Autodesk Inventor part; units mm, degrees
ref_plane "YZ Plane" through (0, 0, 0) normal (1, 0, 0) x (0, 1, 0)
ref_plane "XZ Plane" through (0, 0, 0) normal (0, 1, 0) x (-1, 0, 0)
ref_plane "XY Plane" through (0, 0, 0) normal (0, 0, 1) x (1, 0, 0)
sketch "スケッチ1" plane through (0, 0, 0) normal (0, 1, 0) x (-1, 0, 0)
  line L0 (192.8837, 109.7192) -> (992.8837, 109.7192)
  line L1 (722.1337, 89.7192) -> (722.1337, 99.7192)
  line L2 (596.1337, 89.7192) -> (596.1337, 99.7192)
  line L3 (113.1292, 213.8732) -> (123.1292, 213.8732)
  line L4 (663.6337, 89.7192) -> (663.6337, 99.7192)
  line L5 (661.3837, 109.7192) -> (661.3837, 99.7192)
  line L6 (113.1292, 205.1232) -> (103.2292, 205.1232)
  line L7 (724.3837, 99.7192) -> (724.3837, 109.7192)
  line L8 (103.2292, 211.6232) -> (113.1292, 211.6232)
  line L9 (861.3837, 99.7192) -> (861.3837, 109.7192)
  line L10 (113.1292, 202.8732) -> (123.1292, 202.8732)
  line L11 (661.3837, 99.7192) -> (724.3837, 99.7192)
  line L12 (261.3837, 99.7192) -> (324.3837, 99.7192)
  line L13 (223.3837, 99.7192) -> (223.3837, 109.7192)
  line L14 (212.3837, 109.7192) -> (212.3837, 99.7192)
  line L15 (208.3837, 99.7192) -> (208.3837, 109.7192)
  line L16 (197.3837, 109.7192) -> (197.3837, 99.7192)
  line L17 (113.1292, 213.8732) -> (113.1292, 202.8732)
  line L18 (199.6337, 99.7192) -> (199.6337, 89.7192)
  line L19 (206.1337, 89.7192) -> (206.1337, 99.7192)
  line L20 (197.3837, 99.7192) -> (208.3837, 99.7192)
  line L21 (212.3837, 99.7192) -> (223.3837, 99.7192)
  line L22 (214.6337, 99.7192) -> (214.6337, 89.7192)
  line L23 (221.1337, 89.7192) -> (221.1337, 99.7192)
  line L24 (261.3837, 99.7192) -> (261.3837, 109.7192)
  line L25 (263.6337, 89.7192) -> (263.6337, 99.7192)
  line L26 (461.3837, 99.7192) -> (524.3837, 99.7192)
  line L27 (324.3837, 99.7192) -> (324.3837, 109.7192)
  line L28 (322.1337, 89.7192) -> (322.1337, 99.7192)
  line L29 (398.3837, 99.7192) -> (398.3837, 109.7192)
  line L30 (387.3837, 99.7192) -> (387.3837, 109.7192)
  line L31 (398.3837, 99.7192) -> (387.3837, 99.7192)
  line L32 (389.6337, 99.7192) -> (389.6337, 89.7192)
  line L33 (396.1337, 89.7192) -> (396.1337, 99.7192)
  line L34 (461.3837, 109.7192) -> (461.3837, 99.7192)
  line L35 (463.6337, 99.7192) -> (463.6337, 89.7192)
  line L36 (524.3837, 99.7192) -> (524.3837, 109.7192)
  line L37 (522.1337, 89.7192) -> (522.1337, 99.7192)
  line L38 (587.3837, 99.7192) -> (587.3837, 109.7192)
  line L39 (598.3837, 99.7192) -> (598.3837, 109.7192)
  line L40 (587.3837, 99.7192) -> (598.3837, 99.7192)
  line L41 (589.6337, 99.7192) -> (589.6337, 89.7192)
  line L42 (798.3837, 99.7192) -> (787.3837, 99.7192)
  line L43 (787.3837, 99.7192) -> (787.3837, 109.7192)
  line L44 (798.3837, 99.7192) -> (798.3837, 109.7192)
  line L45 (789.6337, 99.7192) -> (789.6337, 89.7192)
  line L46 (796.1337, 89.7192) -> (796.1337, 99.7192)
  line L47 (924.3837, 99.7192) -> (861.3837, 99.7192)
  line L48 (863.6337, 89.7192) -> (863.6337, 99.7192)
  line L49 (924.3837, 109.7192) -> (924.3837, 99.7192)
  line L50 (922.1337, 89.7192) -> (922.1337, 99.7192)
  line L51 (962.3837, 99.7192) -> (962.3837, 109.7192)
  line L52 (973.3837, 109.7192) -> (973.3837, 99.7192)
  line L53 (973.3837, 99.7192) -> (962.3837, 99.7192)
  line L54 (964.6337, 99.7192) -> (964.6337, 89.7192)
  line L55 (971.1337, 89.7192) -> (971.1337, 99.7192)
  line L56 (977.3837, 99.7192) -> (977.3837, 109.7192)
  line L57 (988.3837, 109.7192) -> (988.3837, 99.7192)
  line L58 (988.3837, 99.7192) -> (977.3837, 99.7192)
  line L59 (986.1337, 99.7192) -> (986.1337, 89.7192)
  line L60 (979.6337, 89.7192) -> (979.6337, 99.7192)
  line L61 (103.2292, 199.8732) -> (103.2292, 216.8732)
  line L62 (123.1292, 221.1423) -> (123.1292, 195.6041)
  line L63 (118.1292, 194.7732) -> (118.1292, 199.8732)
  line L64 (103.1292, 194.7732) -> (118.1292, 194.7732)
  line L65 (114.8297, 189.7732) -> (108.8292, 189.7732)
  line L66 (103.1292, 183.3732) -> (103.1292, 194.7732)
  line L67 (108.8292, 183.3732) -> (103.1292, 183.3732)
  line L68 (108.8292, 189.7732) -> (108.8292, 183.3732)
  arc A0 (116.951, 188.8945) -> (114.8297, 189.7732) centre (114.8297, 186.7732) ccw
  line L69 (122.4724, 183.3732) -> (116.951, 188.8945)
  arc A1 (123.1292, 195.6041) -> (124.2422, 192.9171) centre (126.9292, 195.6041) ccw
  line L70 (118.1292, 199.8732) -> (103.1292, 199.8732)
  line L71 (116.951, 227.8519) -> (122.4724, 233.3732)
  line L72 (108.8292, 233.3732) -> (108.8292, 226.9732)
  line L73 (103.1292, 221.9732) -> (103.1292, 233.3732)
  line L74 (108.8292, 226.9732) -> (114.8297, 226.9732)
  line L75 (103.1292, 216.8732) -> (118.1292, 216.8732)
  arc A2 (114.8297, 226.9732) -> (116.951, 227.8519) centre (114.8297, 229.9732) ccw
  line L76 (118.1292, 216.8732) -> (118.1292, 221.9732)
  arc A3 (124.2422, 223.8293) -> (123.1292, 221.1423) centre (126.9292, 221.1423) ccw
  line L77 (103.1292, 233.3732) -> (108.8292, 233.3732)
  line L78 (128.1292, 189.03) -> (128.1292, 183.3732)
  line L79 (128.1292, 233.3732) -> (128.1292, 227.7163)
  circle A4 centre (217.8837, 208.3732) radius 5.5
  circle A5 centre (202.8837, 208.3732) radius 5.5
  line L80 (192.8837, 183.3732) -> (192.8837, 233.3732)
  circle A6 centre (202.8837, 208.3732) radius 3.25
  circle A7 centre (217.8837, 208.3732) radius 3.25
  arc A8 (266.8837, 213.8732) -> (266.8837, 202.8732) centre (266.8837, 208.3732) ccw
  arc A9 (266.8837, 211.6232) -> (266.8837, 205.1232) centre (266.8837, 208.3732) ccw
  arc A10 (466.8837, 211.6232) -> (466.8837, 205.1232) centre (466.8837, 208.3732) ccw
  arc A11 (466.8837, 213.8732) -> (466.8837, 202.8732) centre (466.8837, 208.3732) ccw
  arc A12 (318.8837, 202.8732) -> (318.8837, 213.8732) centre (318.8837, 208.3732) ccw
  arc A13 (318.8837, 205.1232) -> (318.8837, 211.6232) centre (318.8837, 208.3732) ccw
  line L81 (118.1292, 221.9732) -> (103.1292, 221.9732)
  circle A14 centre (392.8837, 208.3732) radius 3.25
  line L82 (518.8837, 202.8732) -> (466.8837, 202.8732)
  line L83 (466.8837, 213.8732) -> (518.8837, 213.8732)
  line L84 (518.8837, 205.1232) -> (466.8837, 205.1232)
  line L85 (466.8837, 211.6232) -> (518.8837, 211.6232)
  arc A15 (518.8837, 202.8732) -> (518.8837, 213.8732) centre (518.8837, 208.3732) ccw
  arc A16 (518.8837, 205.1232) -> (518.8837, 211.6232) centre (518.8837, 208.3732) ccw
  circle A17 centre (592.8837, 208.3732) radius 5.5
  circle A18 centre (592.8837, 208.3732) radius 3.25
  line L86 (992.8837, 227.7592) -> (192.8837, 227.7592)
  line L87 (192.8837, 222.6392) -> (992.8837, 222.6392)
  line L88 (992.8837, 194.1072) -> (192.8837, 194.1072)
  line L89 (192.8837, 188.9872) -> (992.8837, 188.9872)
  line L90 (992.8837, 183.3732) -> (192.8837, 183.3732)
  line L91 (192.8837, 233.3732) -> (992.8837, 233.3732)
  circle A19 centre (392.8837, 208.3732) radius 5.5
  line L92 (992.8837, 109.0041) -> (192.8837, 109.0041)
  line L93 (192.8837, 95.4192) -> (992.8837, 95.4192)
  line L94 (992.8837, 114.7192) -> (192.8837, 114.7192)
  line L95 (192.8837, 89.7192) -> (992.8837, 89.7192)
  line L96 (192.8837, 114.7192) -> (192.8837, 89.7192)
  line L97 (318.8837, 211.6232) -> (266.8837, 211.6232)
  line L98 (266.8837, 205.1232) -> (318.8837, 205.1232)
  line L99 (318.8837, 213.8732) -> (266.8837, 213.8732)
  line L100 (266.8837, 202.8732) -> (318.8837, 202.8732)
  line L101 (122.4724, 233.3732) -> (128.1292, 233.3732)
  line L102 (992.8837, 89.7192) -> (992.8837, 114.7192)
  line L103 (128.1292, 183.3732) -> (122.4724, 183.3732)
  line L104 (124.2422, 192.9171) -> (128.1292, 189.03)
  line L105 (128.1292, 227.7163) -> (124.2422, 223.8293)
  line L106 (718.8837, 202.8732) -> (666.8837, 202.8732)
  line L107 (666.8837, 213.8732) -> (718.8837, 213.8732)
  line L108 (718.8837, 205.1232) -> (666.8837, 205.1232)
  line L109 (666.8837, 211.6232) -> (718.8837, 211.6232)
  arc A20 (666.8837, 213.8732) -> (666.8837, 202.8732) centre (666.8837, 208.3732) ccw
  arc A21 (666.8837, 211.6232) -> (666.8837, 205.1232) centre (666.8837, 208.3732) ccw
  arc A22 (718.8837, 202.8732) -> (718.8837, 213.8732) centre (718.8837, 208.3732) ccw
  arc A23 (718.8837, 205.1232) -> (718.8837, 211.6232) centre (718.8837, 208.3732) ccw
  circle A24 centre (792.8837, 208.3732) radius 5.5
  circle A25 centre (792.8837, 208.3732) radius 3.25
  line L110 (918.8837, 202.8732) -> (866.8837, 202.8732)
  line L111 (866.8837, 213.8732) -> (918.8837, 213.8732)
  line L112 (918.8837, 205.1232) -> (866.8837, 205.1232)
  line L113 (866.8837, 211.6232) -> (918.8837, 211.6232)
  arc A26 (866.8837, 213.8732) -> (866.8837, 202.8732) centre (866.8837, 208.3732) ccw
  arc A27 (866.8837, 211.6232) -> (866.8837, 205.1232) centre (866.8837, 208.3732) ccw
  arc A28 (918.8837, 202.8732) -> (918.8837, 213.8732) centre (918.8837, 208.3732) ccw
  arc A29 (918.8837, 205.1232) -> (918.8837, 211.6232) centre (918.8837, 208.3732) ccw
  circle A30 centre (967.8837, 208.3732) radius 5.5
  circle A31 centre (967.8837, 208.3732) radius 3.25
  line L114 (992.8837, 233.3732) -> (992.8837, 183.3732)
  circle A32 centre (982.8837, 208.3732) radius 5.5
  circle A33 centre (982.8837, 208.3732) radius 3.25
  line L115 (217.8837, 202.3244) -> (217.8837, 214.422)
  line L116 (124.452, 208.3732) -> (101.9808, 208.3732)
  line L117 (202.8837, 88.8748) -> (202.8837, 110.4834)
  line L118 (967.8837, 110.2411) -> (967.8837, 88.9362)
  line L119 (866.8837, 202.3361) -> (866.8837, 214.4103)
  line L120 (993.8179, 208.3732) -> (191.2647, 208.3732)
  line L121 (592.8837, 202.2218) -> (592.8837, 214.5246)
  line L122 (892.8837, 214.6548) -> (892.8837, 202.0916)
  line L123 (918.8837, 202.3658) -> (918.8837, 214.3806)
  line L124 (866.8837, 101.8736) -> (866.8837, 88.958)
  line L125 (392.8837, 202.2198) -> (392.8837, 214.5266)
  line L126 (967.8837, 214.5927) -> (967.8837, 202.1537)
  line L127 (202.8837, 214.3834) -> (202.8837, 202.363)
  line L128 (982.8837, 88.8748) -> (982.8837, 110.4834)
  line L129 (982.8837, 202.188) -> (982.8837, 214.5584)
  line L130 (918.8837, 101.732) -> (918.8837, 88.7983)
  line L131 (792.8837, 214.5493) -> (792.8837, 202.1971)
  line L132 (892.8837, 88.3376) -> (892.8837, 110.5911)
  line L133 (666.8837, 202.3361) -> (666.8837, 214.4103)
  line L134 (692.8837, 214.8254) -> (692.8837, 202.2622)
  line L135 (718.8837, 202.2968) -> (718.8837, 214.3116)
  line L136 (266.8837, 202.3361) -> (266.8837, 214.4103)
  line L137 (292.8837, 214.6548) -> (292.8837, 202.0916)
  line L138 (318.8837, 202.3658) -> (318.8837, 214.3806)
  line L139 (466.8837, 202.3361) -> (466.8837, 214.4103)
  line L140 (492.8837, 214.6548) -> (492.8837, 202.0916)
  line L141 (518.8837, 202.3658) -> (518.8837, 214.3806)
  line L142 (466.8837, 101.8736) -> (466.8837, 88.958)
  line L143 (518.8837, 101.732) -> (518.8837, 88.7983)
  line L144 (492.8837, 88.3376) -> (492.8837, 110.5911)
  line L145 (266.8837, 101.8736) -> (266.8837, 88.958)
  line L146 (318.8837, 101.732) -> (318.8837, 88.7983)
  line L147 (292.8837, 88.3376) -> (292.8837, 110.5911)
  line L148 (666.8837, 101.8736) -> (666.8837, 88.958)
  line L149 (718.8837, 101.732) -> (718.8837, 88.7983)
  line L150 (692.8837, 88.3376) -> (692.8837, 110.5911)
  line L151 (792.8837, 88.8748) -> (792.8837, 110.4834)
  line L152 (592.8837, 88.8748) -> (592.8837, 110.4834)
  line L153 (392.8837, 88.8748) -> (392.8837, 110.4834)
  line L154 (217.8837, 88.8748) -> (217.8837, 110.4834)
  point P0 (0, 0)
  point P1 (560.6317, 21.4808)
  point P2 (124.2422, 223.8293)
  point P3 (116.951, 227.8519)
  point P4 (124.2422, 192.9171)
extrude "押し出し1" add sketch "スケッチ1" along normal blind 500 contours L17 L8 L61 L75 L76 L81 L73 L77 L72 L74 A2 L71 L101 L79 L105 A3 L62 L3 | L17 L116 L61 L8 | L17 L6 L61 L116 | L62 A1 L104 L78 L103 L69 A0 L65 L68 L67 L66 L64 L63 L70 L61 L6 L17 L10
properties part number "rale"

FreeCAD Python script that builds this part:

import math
import FreeCAD as App
import Part
import Sketcher
from FreeCAD import Vector

doc = App.newDocument("Part")
body = doc.addObject("PartDesign::Body", "Body")

# Sketch on XZ plane
sketch1 = doc.addObject("Sketcher::SketchObject", "Sketch")
body.addObject(sketch1)
sketch1.AttachmentSupport = (doc.XZ_Plane, [""])
sketch1.MapMode = "FlatFace"
sketch1.addGeometry([
    Part.LineSegment(Vector(-113.1292, 213.8732, 0), Vector(-123.1292, 213.8732, 0)),  # 0
    Part.LineSegment(Vector(-123.1292, 213.8732, 0), Vector(-123.1292, 221.1423, 0)),  # 1
    Part.ArcOfCircle(Part.Circle(Vector(-126.9292, 221.1423, 0), Vector(0, 0, 1), 3.799992), math.radians(0), math.radians(45)),  # 2
    Part.LineSegment(Vector(-124.2422, 223.8293, 0), Vector(-128.1292, 227.7163, 0)),  # 3
    Part.LineSegment(Vector(-128.1292, 227.7163, 0), Vector(-128.1292, 233.3732, 0)),  # 4
    Part.LineSegment(Vector(-128.1292, 233.3732, 0), Vector(-122.4724, 233.3732, 0)),  # 5
    Part.LineSegment(Vector(-122.4724, 233.3732, 0), Vector(-116.951, 227.8519, 0)),  # 6
    Part.ArcOfCircle(Part.Circle(Vector(-114.8297, 229.9732, 0), Vector(0, 0, 1), 3), math.radians(-135), math.radians(-90)),  # 7
    Part.LineSegment(Vector(-114.8297, 226.9732, 0), Vector(-108.8292, 226.9732, 0)),  # 8
    Part.LineSegment(Vector(-108.8292, 226.9732, 0), Vector(-108.8292, 233.3732, 0)),  # 9
    Part.LineSegment(Vector(-108.8292, 233.3732, 0), Vector(-103.1292, 233.3732, 0)),  # 10
    Part.LineSegment(Vector(-103.1292, 233.3732, 0), Vector(-103.1292, 221.9732, 0)),  # 11
    Part.LineSegment(Vector(-103.1292, 221.9732, 0), Vector(-118.1292, 221.9732, 0)),  # 12
    Part.LineSegment(Vector(-118.1292, 221.9732, 0), Vector(-118.1292, 216.8732, 0)),  # 13
    Part.LineSegment(Vector(-118.1292, 216.8732, 0), Vector(-103.2292, 216.8732, 0)),  # 14
    Part.LineSegment(Vector(-103.2292, 216.8732, 0), Vector(-103.2292, 199.8732, 0)),  # 15
    Part.LineSegment(Vector(-103.2292, 199.8732, 0), Vector(-118.1292, 199.8732, 0)),  # 16
    Part.LineSegment(Vector(-118.1292, 199.8732, 0), Vector(-118.1292, 194.7732, 0)),  # 17
    Part.LineSegment(Vector(-118.1292, 194.7732, 0), Vector(-103.1292, 194.7732, 0)),  # 18
    Part.LineSegment(Vector(-103.1292, 194.7732, 0), Vector(-103.1292, 183.3732, 0)),  # 19
    Part.LineSegment(Vector(-103.1292, 183.3732, 0), Vector(-108.8292, 183.3732, 0)),  # 20
    Part.LineSegment(Vector(-108.8292, 183.3732, 0), Vector(-108.8292, 189.7732, 0)),  # 21
    Part.LineSegment(Vector(-108.8292, 189.7732, 0), Vector(-114.8297, 189.7732, 0)),  # 22
    Part.ArcOfCircle(Part.Circle(Vector(-114.8297, 186.7732, 0), Vector(0, 0, 1), 2.999971), math.radians(90), math.radians(135)),  # 23
    Part.LineSegment(Vector(-116.951, 188.8945, 0), Vector(-122.4724, 183.3732, 0)),  # 24
    Part.LineSegment(Vector(-122.4724, 183.3732, 0), Vector(-128.1292, 183.3732, 0)),  # 25
    Part.LineSegment(Vector(-128.1292, 183.3732, 0), Vector(-128.1292, 189.03, 0)),  # 26
    Part.LineSegment(Vector(-128.1292, 189.03, 0), Vector(-124.2422, 192.9171, 0)),  # 27
    Part.ArcOfCircle(Part.Circle(Vector(-126.9292, 195.6041, 0), Vector(0, 0, 1), 3.8), math.radians(-45), math.radians(0)),  # 28
    Part.LineSegment(Vector(-123.1292, 195.6041, 0), Vector(-123.1292, 202.8732, 0)),  # 29
    Part.LineSegment(Vector(-123.1292, 202.8732, 0), Vector(-113.1292, 202.8732, 0)),  # 30
    Part.LineSegment(Vector(-113.1292, 202.8732, 0), Vector(-113.1292, 213.8732, 0)),  # 31
], False)
sketch1.addConstraint([
    Sketcher.Constraint("Coincident", 0, 2, 1, 1),
    Sketcher.Constraint("Tangent", 1, 2, 2, 1),
    Sketcher.Constraint("Tangent", 2, 2, 3, 1),
    Sketcher.Constraint("Coincident", 3, 2, 4, 1),
    Sketcher.Constraint("Coincident", 4, 2, 5, 1),
    Sketcher.Constraint("Coincident", 5, 2, 6, 1),
    Sketcher.Constraint("Tangent", 6, 2, 7, 1),
    Sketcher.Constraint("Tangent", 7, 2, 8, 1),
    Sketcher.Constraint("Coincident", 8, 2, 9, 1),
    Sketcher.Constraint("Coincident", 9, 2, 10, 1),
    Sketcher.Constraint("Coincident", 10, 2, 11, 1),
    Sketcher.Constraint("Coincident", 11, 2, 12, 1),
    Sketcher.Constraint("Coincident", 12, 2, 13, 1),
    Sketcher.Constraint("Coincident", 13, 2, 14, 1),
    Sketcher.Constraint("Coincident", 14, 2, 15, 1),
    Sketcher.Constraint("Coincident", 15, 2, 16, 1),
    Sketcher.Constraint("Coincident", 16, 2, 17, 1),
    Sketcher.Constraint("Coincident", 17, 2, 18, 1),
    Sketcher.Constraint("Coincident", 18, 2, 19, 1),
    Sketcher.Constraint("Coincident", 19, 2, 20, 1),
    Sketcher.Constraint("Coincident", 20, 2, 21, 1),
    Sketcher.Constraint("Coincident", 21, 2, 22, 1),
    Sketcher.Constraint("Tangent", 22, 2, 23, 1),
    Sketcher.Constraint("Tangent", 23, 2, 24, 1),
    Sketcher.Constraint("Coincident", 24, 2, 25, 1),
    Sketcher.Constraint("Coincident", 25, 2, 26, 1),
    Sketcher.Constraint("Coincident", 26, 2, 27, 1),
    Sketcher.Constraint("Tangent", 27, 2, 28, 1),
    Sketcher.Constraint("Tangent", 28, 2, 29, 1),
    Sketcher.Constraint("Coincident", 29, 2, 30, 1),
    Sketcher.Constraint("Coincident", 30, 2, 31, 1),
    Sketcher.Constraint("Coincident", 31, 2, 0, 1),
    Sketcher.Constraint("Horizontal", 0),
    Sketcher.Constraint("Vertical", 1),
    Sketcher.Constraint("Vertical", 4),
    Sketcher.Constraint("Horizontal", 5),
    Sketcher.Constraint("Horizontal", 8),
    Sketcher.Constraint("Vertical", 9),
    Sketcher.Constraint("Horizontal", 10),
    Sketcher.Constraint("Vertical", 11),
    Sketcher.Constraint("Horizontal", 12),
    Sketcher.Constraint("Vertical", 13),
    Sketcher.Constraint("Horizontal", 14),
    Sketcher.Constraint("Vertical", 15),
    Sketcher.Constraint("Horizontal", 16),
    Sketcher.Constraint("Vertical", 17),
    Sketcher.Constraint("Horizontal", 18),
    Sketcher.Constraint("Vertical", 19),
    Sketcher.Constraint("Horizontal", 20),
    Sketcher.Constraint("Vertical", 21),
    Sketcher.Constraint("Horizontal", 22),
    Sketcher.Constraint("Horizontal", 25),
    Sketcher.Constraint("Vertical", 26),
    Sketcher.Constraint("Vertical", 29),
    Sketcher.Constraint("Horizontal", 30),
    Sketcher.Constraint("Vertical", 31),
    Sketcher.Constraint("Equal", 7, 23),
    Sketcher.Constraint("Equal", 2, 28),
    Sketcher.Constraint("Parallel", 3, 6),
    Sketcher.Constraint("Perpendicular", 6, 24),
    Sketcher.Constraint("Parallel", 24, 27),
    Sketcher.Constraint("Horizontal", 5, 2, 9, 2),
    Sketcher.Constraint("Horizontal", 20, 2, 24, 2),
    Sketcher.Constraint("Vertical", 7, 3, 23, 3),
    Sketcher.Constraint("Vertical", 2, 3, 28, 3),
    Sketcher.Constraint("Vertical", 13, 2, 16, 2),
    Sketcher.Constraint("Vertical", 11, 2, 18, 2),
    Sketcher.Constraint("Vertical", 9, 2, 20, 2),
    Sketcher.Constraint("Vertical", 6, 2, 23, 2),
    Sketcher.Constraint("Vertical", 5, 2, 24, 2),
    Sketcher.Constraint("Vertical", 4, 2, 25, 2),
    Sketcher.Constraint("Equal", 25, 4),
    Sketcher.Constraint("Equal", 13, 17),
    Sketcher.Constraint("Equal", 11, 19),
    Sketcher.Constraint("Equal", 4, 26),
    Sketcher.Constraint("Equal", 1, 29),
    Sketcher.Constraint("Radius", 7, 3.0),
    Sketcher.Constraint("Radius", 2, 3.8),
    Sketcher.Constraint("DistanceX", 0, 2, 0, 1, 10.0),
    Sketcher.Constraint("DistanceX", 12, 2, 12, 1, 15.0),
    Sketcher.Constraint("DistanceY", 15, 2, 15, 1, 17.0),
    Sketcher.Constraint("DistanceY", 31, 1, 31, 2, 11.0),
    Sketcher.Constraint("DistanceX", 10, 1, 10, 2, 5.7),
    Sketcher.Constraint("DistanceX", 14, 1, 14, 2, 14.9),
    Sketcher.Constraint("DistanceY", 9, 1, 9, 2, 6.4),
    Sketcher.Constraint("DistanceY", 11, 2, 11, 1, 11.4),
    Sketcher.Constraint("DistanceY", 13, 2, 13, 1, 5.1),
    Sketcher.Constraint("DistanceX", 3, 2, 1, 2, 5.0),
    Sketcher.Constraint("DistanceX", 1, 2, 12, 2, 5.0),
    Sketcher.Constraint("DistanceY", 1, 1, 1, 2, 7.269),
    Sketcher.Constraint("DistanceY", -1, 1, 26, 2, 189.03),
    Sketcher.Constraint("DistanceX", 6, 2, -1, 1, 116.951),
])
pad1 = doc.addObject("PartDesign::Pad", "Pad")
body.addObject(pad1)
pad1.Profile = sketch1
pad1.Length = 500
pad1.Reversed = True

doc.recompute()
